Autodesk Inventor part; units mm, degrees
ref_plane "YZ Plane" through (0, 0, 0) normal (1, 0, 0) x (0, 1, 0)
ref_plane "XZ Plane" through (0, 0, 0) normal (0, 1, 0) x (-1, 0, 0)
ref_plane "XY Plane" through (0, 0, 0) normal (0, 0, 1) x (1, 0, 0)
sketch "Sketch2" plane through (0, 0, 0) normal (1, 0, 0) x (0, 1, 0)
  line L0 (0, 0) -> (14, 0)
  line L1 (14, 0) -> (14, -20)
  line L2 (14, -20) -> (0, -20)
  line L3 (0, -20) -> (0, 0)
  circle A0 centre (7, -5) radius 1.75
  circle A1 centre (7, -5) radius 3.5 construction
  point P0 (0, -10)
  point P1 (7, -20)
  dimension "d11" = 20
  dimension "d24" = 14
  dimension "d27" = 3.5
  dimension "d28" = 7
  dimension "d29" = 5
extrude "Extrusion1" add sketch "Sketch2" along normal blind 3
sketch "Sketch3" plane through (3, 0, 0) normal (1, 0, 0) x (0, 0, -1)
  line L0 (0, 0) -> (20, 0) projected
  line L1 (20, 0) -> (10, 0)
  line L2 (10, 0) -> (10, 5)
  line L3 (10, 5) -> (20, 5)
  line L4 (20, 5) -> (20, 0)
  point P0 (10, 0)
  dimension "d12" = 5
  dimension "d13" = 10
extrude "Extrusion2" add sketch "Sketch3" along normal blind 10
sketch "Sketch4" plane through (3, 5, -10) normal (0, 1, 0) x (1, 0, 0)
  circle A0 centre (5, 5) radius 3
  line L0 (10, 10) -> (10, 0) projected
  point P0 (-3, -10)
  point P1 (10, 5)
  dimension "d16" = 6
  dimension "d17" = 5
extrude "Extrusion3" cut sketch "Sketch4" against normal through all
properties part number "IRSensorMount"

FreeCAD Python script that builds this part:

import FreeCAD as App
import Part
import Sketcher
from FreeCAD import Vector

doc = App.newDocument("Part")
params = doc.addObject("Spreadsheet::Sheet", "Params")
for row, (alias, value) in enumerate([
    ("sketch1_diameter", "3.5 mm"),
    ("sketch1_width", "14 mm"),
    ("sketch1_height", "20 mm"),
    ("pad1_length", "3 mm"),
    ("sketch2_width", "5 mm"),
    ("sketch2_height", "10 mm"),
    ("pad2_length", "10 mm"),
    ("sketch3_diameter", "6 mm"),
], start=1):
    params.set(f"A{row}", alias)
    params.set(f"B{row}", "=" + value)
    params.setAlias(f"B{row}", alias)

body = doc.addObject("PartDesign::Body", "Body")

# Sketch on YZ plane
sketch1 = doc.addObject("Sketcher::SketchObject", "Sketch")
body.addObject(sketch1)
sketch1.AttachmentSupport = (doc.YZ_Plane, [""])
sketch1.MapMode = "FlatFace"
sketch1.addGeometry([
    Part.LineSegment(Vector(14, 0, 0), Vector(0, 0, 0)),  # 0
    Part.LineSegment(Vector(0, 0, 0), Vector(0, -20, 0)),  # 1
    Part.LineSegment(Vector(0, -20, 0), Vector(14, -20, 0)),  # 2
    Part.LineSegment(Vector(14, -20, 0), Vector(14, 0, 0)),  # 3
    Part.Circle(Vector(7, -5, 0), Vector(0, 0, 1), 1.8),  # 4
], False)
sketch1.addConstraint([
    Sketcher.Constraint("Coincident", 0, 2, 1, 1),
    Sketcher.Constraint("Coincident", 1, 2, 2, 1),
    Sketcher.Constraint("Coincident", 2, 2, 3, 1),
    Sketcher.Constraint("Coincident", 3, 2, 0, 1),
    Sketcher.Constraint("Horizontal", 0),
    Sketcher.Constraint("Vertical", 1),
    Sketcher.Constraint("Horizontal", 2),
    Sketcher.Constraint("Vertical", 3),
    Sketcher.Constraint("Coincident", 0, 2, -1, 1),
    Sketcher.Constraint("Diameter", 4, 3.5),
    Sketcher.Constraint("DistanceX", 0, 2, 0, 1, 14.0),
    Sketcher.Constraint("DistanceY", 1, 2, 1, 1, 20.0),
    Sketcher.Constraint("DistanceX", -1, 1, 4, 3, 7.0),
    Sketcher.Constraint("DistanceY", 4, 3, -1, 1, 5.0),
])
sketch1.setExpression("Constraints[9]", "Params.sketch1_diameter")
sketch1.setExpression("Constraints[10]", "Params.sketch1_width")
sketch1.setExpression("Constraints[11]", "Params.sketch1_height")
pad1 = doc.addObject("PartDesign::Pad", "Pad")
body.addObject(pad1)
pad1.Profile = sketch1
pad1.setExpression("Length", "Params.pad1_length")

# Sketch on YZ plane
sketch2 = doc.addObject("Sketcher::SketchObject", "Sketch001")
body.addObject(sketch2)
sketch2.AttachmentSupport = (doc.YZ_Plane, [""])
sketch2.MapMode = "FlatFace"
sketch2.AttachmentOffset = App.Placement(Vector(0, 0, 3), App.Rotation())
sketch2.addGeometry([
    Part.LineSegment(Vector(5, -10, 0), Vector(0, -10, 0)),
    Part.LineSegment(Vector(0, -10, 0), Vector(0, -20, 0)),
    Part.LineSegment(Vector(0, -20, 0), Vector(5, -20, 0)),
    Part.LineSegment(Vector(5, -20, 0), Vector(5, -10, 0)),
], False)
sketch2.addConstraint([
    Sketcher.Constraint("Coincident", 0, 2, 1, 1),
    Sketcher.Constraint("Coincident", 1, 2, 2, 1),
    Sketcher.Constraint("Coincident", 2, 2, 3, 1),
    Sketcher.Constraint("Coincident", 3, 2, 0, 1),
    Sketcher.Constraint("Horizontal", 0),
    Sketcher.Constraint("Vertical", 1),
    Sketcher.Constraint("Horizontal", 2),
    Sketcher.Constraint("Vertical", 3),
    Sketcher.Constraint("PointOnObject", 0, 2, -2),
    Sketcher.Constraint("DistanceX", 0, 2, 0, 1, 5.0),
    Sketcher.Constraint("DistanceY", 1, 2, 1, 1, 10.0),
    Sketcher.Constraint("DistanceY", 0, 2, -1, 1, 10.0),
])
sketch2.setExpression("Constraints[9]", "Params.sketch2_width")
sketch2.setExpression("Constraints[10]", "Params.sketch2_height")
pad2 = doc.addObject("PartDesign::Pad", "Pad001")
body.addObject(pad2)
pad2.Profile = sketch2
pad2.setExpression("Length", "Params.pad2_length")

# Sketch on XZ plane
sketch3 = doc.addObject("Sketcher::SketchObject", "Sketch002")
body.addObject(sketch3)
sketch3.AttachmentSupport = (doc.XZ_Plane, [""])
sketch3.MapMode = "FlatFace"
sketch3.AttachmentOffset = App.Placement(Vector(0, 0, -5), App.Rotation())
sketch3.addGeometry(Part.Circle(Vector(8, -15, 0), Vector(0, 0, 1), 3), False)
sketch3.addConstraint([
    Sketcher.Constraint("Diameter", 0, 6.0),
    Sketcher.Constraint("DistanceX", -1, 1, 0, 3, 8.0),
    Sketcher.Constraint("DistanceY", 0, 3, -1, 1, 15.0),
])
sketch3.setExpression("Constraints[0]", "Params.sketch3_diameter")
pocket1 = doc.addObject("PartDesign::Pocket", "Pocket")
body.addObject(pocket1)
pocket1.Profile = sketch3
pocket1.Type = "ThroughAll"
pocket1.Reversed = True

doc.recompute()
